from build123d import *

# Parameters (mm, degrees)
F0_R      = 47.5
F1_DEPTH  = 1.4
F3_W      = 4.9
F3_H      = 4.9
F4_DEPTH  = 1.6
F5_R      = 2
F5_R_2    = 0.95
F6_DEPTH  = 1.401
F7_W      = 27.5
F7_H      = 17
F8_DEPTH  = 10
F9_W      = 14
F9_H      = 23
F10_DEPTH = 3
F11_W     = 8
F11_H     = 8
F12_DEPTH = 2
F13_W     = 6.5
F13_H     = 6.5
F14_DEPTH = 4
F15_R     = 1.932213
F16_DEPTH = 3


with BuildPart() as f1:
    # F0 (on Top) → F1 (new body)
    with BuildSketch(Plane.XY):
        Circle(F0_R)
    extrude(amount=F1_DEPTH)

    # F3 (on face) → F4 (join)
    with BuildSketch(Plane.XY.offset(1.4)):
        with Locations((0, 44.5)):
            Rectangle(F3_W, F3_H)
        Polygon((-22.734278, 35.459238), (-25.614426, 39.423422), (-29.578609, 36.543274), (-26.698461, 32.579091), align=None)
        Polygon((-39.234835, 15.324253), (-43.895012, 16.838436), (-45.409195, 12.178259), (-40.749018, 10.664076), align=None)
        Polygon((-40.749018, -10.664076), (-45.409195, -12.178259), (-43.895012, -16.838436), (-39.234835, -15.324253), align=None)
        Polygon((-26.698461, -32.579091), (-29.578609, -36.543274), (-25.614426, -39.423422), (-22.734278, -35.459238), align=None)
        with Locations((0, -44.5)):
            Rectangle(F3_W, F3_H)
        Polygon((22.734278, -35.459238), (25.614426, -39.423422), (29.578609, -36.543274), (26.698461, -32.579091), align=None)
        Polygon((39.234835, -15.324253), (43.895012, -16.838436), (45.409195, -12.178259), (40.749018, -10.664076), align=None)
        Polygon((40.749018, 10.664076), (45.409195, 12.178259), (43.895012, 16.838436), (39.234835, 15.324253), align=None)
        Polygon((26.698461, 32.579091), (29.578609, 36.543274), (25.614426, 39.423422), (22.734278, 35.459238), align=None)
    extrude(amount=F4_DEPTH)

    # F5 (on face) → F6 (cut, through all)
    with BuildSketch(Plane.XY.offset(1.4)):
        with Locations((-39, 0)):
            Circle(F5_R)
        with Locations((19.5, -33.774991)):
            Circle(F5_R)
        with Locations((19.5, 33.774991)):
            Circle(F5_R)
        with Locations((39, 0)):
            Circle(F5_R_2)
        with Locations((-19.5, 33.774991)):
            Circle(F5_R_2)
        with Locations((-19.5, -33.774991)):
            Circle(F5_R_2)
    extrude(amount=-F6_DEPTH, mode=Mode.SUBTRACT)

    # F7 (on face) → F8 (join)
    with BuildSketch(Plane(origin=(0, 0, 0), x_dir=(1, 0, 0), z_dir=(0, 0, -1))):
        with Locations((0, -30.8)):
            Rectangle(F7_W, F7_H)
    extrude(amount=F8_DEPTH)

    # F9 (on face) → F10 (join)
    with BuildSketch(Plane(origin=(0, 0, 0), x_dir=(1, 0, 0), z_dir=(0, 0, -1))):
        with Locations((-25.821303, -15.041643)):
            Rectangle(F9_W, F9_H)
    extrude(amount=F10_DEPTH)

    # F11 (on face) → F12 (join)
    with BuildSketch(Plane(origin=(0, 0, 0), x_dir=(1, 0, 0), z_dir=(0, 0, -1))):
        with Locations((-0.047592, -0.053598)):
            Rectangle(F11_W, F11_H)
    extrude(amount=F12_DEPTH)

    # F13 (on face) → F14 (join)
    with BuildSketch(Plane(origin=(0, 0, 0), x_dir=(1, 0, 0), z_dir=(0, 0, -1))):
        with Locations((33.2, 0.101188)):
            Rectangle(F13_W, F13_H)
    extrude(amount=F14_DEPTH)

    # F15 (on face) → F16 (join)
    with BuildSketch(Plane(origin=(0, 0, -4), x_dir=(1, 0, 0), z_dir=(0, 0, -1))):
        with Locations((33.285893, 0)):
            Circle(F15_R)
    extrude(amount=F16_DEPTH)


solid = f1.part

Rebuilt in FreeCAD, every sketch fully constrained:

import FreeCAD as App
import Part
import Sketcher

V = App.Vector
Q = App.Units.Quantity

doc = App.newDocument("Part")
params = doc.addObject("Spreadsheet::Sheet", "Params")
for row, (alias, value) in enumerate([
    ("sketch1_diameter", "95 mm"),
    ("pad1_length", "1.4 mm"),
    ("sketch2_width", "4.9 mm"),
    ("sketch2_length", "4.900001 mm"),
    ("pad2_length", "1.6 mm"),
    ("sketch3_diameter", "4 mm"),
    ("sketch3_diameter2", "1.9 mm"),
    ("sketch4_height", "17 mm"),
    ("sketch4_width", "27.5 mm"),
    ("pad3_length", "10 mm"),
    ("sketch5_width", "14 mm"),
    ("sketch5_height", "23 mm"),
    ("pad4_length", "3 mm"),
    ("sketch6_width", "8 mm"),
    ("pad5_length", "2 mm"),
    ("sketch7_width", "6.5 mm"),
    ("pad6_length", "4 mm"),
    ("pad7_length", "3 mm"),
], start=1):
    params.set(f"A{row}", alias)
    params.set(f"B{row}", "=" + value)
    params.setAlias(f"B{row}", alias)

body = doc.addObject("PartDesign::Body", "Body")

# Sketch on XY plane
sketch1 = body.newObject("Sketcher::SketchObject", "Sketch")
sketch1.AttachmentSupport = (doc.getObject("XY_Plane"), [""])
sketch1.MapMode = "FlatFace"
sketch1.addGeometry(Part.Circle(V(0, 0, 0), V(0, 0, 1), 48), False)
sketch1.addConstraint(Sketcher.Constraint("Coincident", 0, 3, -1, 1))
sketch1.addConstraint(Sketcher.Constraint("Diameter", 0, Q("95 mm")))
sketch1.setExpression("Constraints[1]", "Params.sketch1_diameter")
pad1 = body.newObject("PartDesign::Pad", "Pad")
pad1.Profile = sketch1
pad1.setExpression("Length", "Params.pad1_length")

# Sketch on XY plane
sketch2 = body.newObject("Sketcher::SketchObject", "Sketch001")
sketch2.AttachmentSupport = (doc.getObject("XY_Plane"), [""])
sketch2.MapMode = "FlatFace"
sketch2.AttachmentOffset = App.Placement(V(0, 0, 1.4), App.Rotation())
sketch2.addGeometry(Part.LineSegment(V(-2.5, 47, 0), V(-2.5, 42, 0)), False)
sketch2.addGeometry(Part.LineSegment(V(-2.5, 42, 0), V(2.5, 42, 0)), False)
sketch2.addGeometry(Part.LineSegment(V(2.5, 42, 0), V(2.5, 47, 0)), False)
sketch2.addGeometry(Part.LineSegment(V(2.5, 47, 0), V(-2.5, 47, 0)), False)
sketch2.addGeometry(Part.LineSegment(V(-22.7, 35.5, 0), V(-25.6, 39.4, 0)), False)
sketch2.addGeometry(Part.LineSegment(V(-25.6, 39.4, 0), V(-29.6, 36.5, 0)), False)
sketch2.addGeometry(Part.LineSegment(V(-29.6, 36.5, 0), V(-26.7, 32.6, 0)), False)
sketch2.addGeometry(Part.LineSegment(V(-26.7, 32.6, 0), V(-22.7, 35.5, 0)), False)
sketch2.addGeometry(Part.LineSegment(V(-39.2, 15.3, 0), V(-43.9, 16.8, 0)), False)
sketch2.addGeometry(Part.LineSegment(V(-43.9, 16.8, 0), V(-45.4, 12.2, 0)), False)
sketch2.addGeometry(Part.LineSegment(V(-45.4, 12.2, 0), V(-40.7, 10.7, 0)), False)
sketch2.addGeometry(Part.LineSegment(V(-40.7, 10.7, 0), V(-39.2, 15.3, 0)), False)
sketch2.addGeometry(Part.LineSegment(V(-40.7, -10.7, 0), V(-45.4, -12.2, 0)), False)
sketch2.addGeometry(Part.LineSegment(V(-45.4, -12.2, 0), V(-43.9, -16.8, 0)), False)
sketch2.addGeometry(Part.LineSegment(V(-43.9, -16.8, 0), V(-39.2, -15.3, 0)), False)
sketch2.addGeometry(Part.LineSegment(V(-39.2, -15.3, 0), V(-40.7, -10.7, 0)), False)
sketch2.addGeometry(Part.LineSegment(V(-26.7, -32.6, 0), V(-29.6, -36.5, 0)), False)
sketch2.addGeometry(Part.LineSegment(V(-29.6, -36.5, 0), V(-25.6, -39.4, 0)), False)
sketch2.addGeometry(Part.LineSegment(V(-25.6, -39.4, 0), V(-22.7, -35.5, 0)), False)
sketch2.addGeometry(Part.LineSegment(V(-22.7, -35.5, 0), V(-26.7, -32.6, 0)), False)
sketch2.addGeometry(Part.LineSegment(V(-2.5, -42, 0), V(-2.5, -47, 0)), False)
sketch2.addGeometry(Part.LineSegment(V(-2.5, -47, 0), V(2.5, -47, 0)), False)
sketch2.addGeometry(Part.LineSegment(V(2.5, -47, 0), V(2.5, -42, 0)), False)
sketch2.addGeometry(Part.LineSegment(V(2.5, -42, 0), V(-2.5, -42, 0)), False)
sketch2.addGeometry(Part.LineSegment(V(22.7, -35.5, 0), V(25.6, -39.4, 0)), False)
sketch2.addGeometry(Part.LineSegment(V(25.6, -39.4, 0), V(29.6, -36.5, 0)), False)
sketch2.addGeometry(Part.LineSegment(V(29.6, -36.5, 0), V(26.7, -32.6, 0)), False)
sketch2.addGeometry(Part.LineSegment(V(26.7, -32.6, 0), V(22.7, -35.5, 0)), False)
sketch2.addGeometry(Part.LineSegment(V(39.2, -15.3, 0), V(43.9, -16.8, 0)), False)
sketch2.addGeometry(Part.LineSegment(V(43.9, -16.8, 0), V(45.4, -12.2, 0)), False)
sketch2.addGeometry(Part.LineSegment(V(45.4, -12.2, 0), V(40.7, -10.7, 0)), False)
sketch2.addGeometry(Part.LineSegment(V(40.7, -10.7, 0), V(39.2, -15.3, 0)), False)
sketch2.addGeometry(Part.LineSegment(V(40.7, 10.7, 0), V(45.4, 12.2, 0)), False)
sketch2.addGeometry(Part.LineSegment(V(45.4, 12.2, 0), V(43.9, 16.8, 0)), False)
sketch2.addGeometry(Part.LineSegment(V(43.9, 16.8, 0), V(39.2, 15.3, 0)), False)
sketch2.addGeometry(Part.LineSegment(V(39.2, 15.3, 0), V(40.7, 10.7, 0)), False)
sketch2.addGeometry(Part.LineSegment(V(26.7, 32.6, 0), V(29.6, 36.5, 0)), False)
sketch2.addGeometry(Part.LineSegment(V(29.6, 36.5, 0), V(25.6, 39.4, 0)), False)
sketch2.addGeometry(Part.LineSegment(V(25.6, 39.4, 0), V(22.7, 35.5, 0)), False)
sketch2.addGeometry(Part.LineSegment(V(22.7, 35.5, 0), V(26.7, 32.6, 0)), False)
sketch2.addConstraint(Sketcher.Constraint("Coincident", 0, 2, 1, 1))
sketch2.addConstraint(Sketcher.Constraint("Coincident", 1, 2, 2, 1))
sketch2.addConstraint(Sketcher.Constraint("Coincident", 2, 2, 3, 1))
sketch2.addConstraint(Sketcher.Constraint("Coincident", 3, 2, 0, 1))
sketch2.addConstraint(Sketcher.Constraint("Coincident", 4, 2, 5, 1))
sketch2.addConstraint(Sketcher.Constraint("Coincident", 5, 2, 6, 1))
sketch2.addConstraint(Sketcher.Constraint("Coincident", 6, 2, 7, 1))
sketch2.addConstraint(Sketcher.Constraint("Coincident", 7, 2, 4, 1))
sketch2.addConstraint(Sketcher.Constraint("Coincident", 8, 2, 9, 1))
sketch2.addConstraint(Sketcher.Constraint("Coincident", 9, 2, 10, 1))
sketch2.addConstraint(Sketcher.Constraint("Coincident", 10, 2, 11, 1))
sketch2.addConstraint(Sketcher.Constraint("Coincident", 11, 2, 8, 1))
sketch2.addConstraint(Sketcher.Constraint("Coincident", 12, 2, 13, 1))
sketch2.addConstraint(Sketcher.Constraint("Coincident", 13, 2, 14, 1))
sketch2.addConstraint(Sketcher.Constraint("Coincident", 14, 2, 15, 1))
sketch2.addConstraint(Sketcher.Constraint("Coincident", 15, 2, 12, 1))
sketch2.addConstraint(Sketcher.Constraint("Coincident", 16, 2, 17, 1))
sketch2.addConstraint(Sketcher.Constraint("Coincident", 17, 2, 18, 1))
sketch2.addConstraint(Sketcher.Constraint("Coincident", 18, 2, 19, 1))
sketch2.addConstraint(Sketcher.Constraint("Coincident", 19, 2, 16, 1))
sketch2.addConstraint(Sketcher.Constraint("Coincident", 20, 2, 21, 1))
sketch2.addConstraint(Sketcher.Constraint("Coincident", 21, 2, 22, 1))
sketch2.addConstraint(Sketcher.Constraint("Coincident", 22, 2, 23, 1))
sketch2.addConstraint(Sketcher.Constraint("Coincident", 23, 2, 20, 1))
sketch2.addConstraint(Sketcher.Constraint("Coincident", 24, 2, 25, 1))
sketch2.addConstraint(Sketcher.Constraint("Coincident", 25, 2, 26, 1))
sketch2.addConstraint(Sketcher.Constraint("Coincident", 26, 2, 27, 1))
sketch2.addConstraint(Sketcher.Constraint("Coincident", 27, 2, 24, 1))
sketch2.addConstraint(Sketcher.Constraint("Coincident", 28, 2, 29, 1))
sketch2.addConstraint(Sketcher.Constraint("Coincident", 29, 2, 30, 1))
sketch2.addConstraint(Sketcher.Constraint("Coincident", 30, 2, 31, 1))
sketch2.addConstraint(Sketcher.Constraint("Coincident", 31, 2, 28, 1))
sketch2.addConstraint(Sketcher.Constraint("Coincident", 32, 2, 33, 1))
sketch2.addConstraint(Sketcher.Constraint("Coincident", 33, 2, 34, 1))
sketch2.addConstraint(Sketcher.Constraint("Coincident", 34, 2, 35, 1))
sketch2.addConstraint(Sketcher.Constraint("Coincident", 35, 2, 32, 1))
sketch2.addConstraint(Sketcher.Constraint("Coincident", 36, 2, 37, 1))
sketch2.addConstraint(Sketcher.Constraint("Coincident", 37, 2, 38, 1))
sketch2.addConstraint(Sketcher.Constraint("Coincident", 38, 2, 39, 1))
sketch2.addConstraint(Sketcher.Constraint("Coincident", 39, 2, 36, 1))
sketch2.addConstraint(Sketcher.Constraint("Vertical", 0))
sketch2.addConstraint(Sketcher.Constraint("Horizontal", 1))
sketch2.addConstraint(Sketcher.Constraint("Vertical", 2))
sketch2.addConstraint(Sketcher.Constraint("Horizontal", 3))
sketch2.addConstraint(Sketcher.Constraint("Vertical", 20))
sketch2.addConstraint(Sketcher.Constraint("Horizontal", 21))
sketch2.addConstraint(Sketcher.Constraint("Vertical", 22))
sketch2.addConstraint(Sketcher.Constraint("Horizontal", 23))
sketch2.addConstraint(Sketcher.Constraint("Symmetric", 2, 2, 20, 2, -1, 1))
sketch2.addConstraint(Sketcher.Constraint("Symmetric", 0, 2, 22, 2, -1, 1))
sketch2.addConstraint(Sketcher.Constraint("Symmetric", 4, 2, 24, 2, -1, 1))
sketch2.addConstraint(Sketcher.Constraint("Symmetric", 5, 2, 25, 2, -1, 1))
sketch2.addConstraint(Sketcher.Constraint("Symmetric", 6, 2, 26, 2, -1, 1))
sketch2.addConstraint(Sketcher.Constraint("Symmetric", 7, 2, 27, 2, -1, 1))
sketch2.addConstraint(Sketcher.Constraint("Symmetric", 8, 2, 28, 2, -1, 1))
sketch2.addConstraint(Sketcher.Constraint("Symmetric", 9, 2, 29, 2, -1, 1))
sketch2.addConstraint(Sketcher.Constraint("Symmetric", 10, 2, 30, 2, -1, 1))
sketch2.addConstraint(Sketcher.Constraint("Symmetric", 11, 2, 31, 2, -1, 1))
sketch2.addConstraint(Sketcher.Constraint("Symmetric", 12, 2, 32, 2, -1, 1))
sketch2.addConstraint(Sketcher.Constraint("Symmetric", 13, 2, 33, 2, -1, 1))
sketch2.addConstraint(Sketcher.Constraint("Symmetric", 14, 2, 34, 2, -1, 1))
sketch2.addConstraint(Sketcher.Constraint("Symmetric", 15, 2, 35, 2, -1, 1))
sketch2.addConstraint(Sketcher.Constraint("Symmetric", 16, 2, 36, 2, -1, 1))
sketch2.addConstraint(Sketcher.Constraint("Symmetric", 17, 2, 37, 2, -1, 1))
sketch2.addConstraint(Sketcher.Constraint("Symmetric", 18, 2, 38, 2, -1, 1))
sketch2.addConstraint(Sketcher.Constraint("Symmetric", 19, 2, 39, 2, -1, 1))
sketch2.addConstraint(Sketcher.Constraint("Symmetric", 17, 2, 24, 2, -2))
sketch2.addConstraint(Sketcher.Constraint("Symmetric", 16, 2, 25, 2, -2))
sketch2.addConstraint(Sketcher.Constraint("Symmetric", 19, 2, 26, 2, -2))
sketch2.addConstraint(Sketcher.Constraint("Symmetric", 18, 2, 27, 2, -2))
sketch2.addConstraint(Sketcher.Constraint("Symmetric", 13, 2, 28, 2, -2))
sketch2.addConstraint(Sketcher.Constraint("Symmetric", 12, 2, 29, 2, -2))
sketch2.addConstraint(Sketcher.Constraint("Symmetric", 15, 2, 30, 2, -2))
sketch2.addConstraint(Sketcher.Constraint("Symmetric", 14, 2, 31, 2, -2))
sketch2.addConstraint(Sketcher.Constraint("Perpendicular", 4, 5))
sketch2.addConstraint(Sketcher.Constraint("Perpendicular", 5, 6))
sketch2.addConstraint(Sketcher.Constraint("Perpendicular", 6, 7))
sketch2.addConstraint(Sketcher.Constraint("Perpendicular", 8, 9))
sketch2.addConstraint(Sketcher.Constraint("Perpendicular", 9, 10))
sketch2.addConstraint(Sketcher.Constraint("Perpendicular", 10, 11))
sketch2.addConstraint(Sketcher.Constraint("Vertical", 3, 2, 20, 2))
sketch2.addConstraint(Sketcher.Constraint("Equal", 23, 0))
sketch2.addConstraint(Sketcher.Constraint("Equal", 4, 5))
sketch2.addConstraint(Sketcher.Constraint("Equal", 7, 8))
sketch2.addConstraint(Sketcher.Constraint("Equal", 8, 9))
sketch2.addConstraint(Sketcher.Constraint("Angle", 4, Q("125.999997 deg")))
sketch2.addConstraint(Sketcher.Constraint("Angle", 8, Q("162.000003 deg")))
sketch2.addConstraint(Sketcher.Constraint("DistanceX", 1, 1, 1, 2, Q("4.9 mm")))
sketch2.addConstraint(Sketcher.Constraint("Distance", 4, Q("4.900001 mm")))
sketch2.addConstraint(Sketcher.Constraint("DistanceY", -1, 1, 0, 2, Q("42.05 mm")))
sketch2.addConstraint(Sketcher.Constraint("DistanceY", 8, 2, 7, 2, Q("18.620802 mm")))
sketch2.addConstraint(Sketcher.Constraint("DistanceX", 5, 2, -1, 1, Q("29.578609 mm")))
sketch2.addConstraint(Sketcher.Constraint("DistanceY", -1, 1, 6, 2, Q("32.579091 mm")))
sketch2.addConstraint(Sketcher.Constraint("DistanceX", 8, 2, 6, 2, Q("17.196551 mm")))
sketch2.setExpression("Constraints[87]", "Params.sketch2_width")
sketch2.setExpression("Constraints[88]", "Params.sketch2_length")
pad2 = body.newObject("PartDesign::Pad", "Pad001")
pad2.Profile = sketch2
pad2.setExpression("Length", "Params.pad2_length")

# Sketch on XY plane
sketch3 = body.newObject("Sketcher::SketchObject", "Sketch002")
sketch3.AttachmentSupport = (doc.getObject("XY_Plane"), [""])
sketch3.MapMode = "FlatFace"
sketch3.AttachmentOffset = App.Placement(V(0, 0, 1.4), App.Rotation())
sketch3.addGeometry(Part.Circle(V(-39, 0, 0), V(0, 0, 1), 2), False)
sketch3.addGeometry(Part.Circle(V(19.5, -33.8, 0), V(0, 0, 1), 2), False)
sketch3.addGeometry(Part.Circle(V(19.5, 33.8, 0), V(0, 0, 1), 2), False)
sketch3.addGeometry(Part.Circle(V(39, 0, 0), V(0, 0, 1), 0.9), False)
sketch3.addGeometry(Part.Circle(V(-19.5, 33.8, 0), V(0, 0, 1), 0.9), False)
sketch3.addGeometry(Part.Circle(V(-19.5, -33.8, 0), V(0, 0, 1), 0.9), False)
sketch3.addConstraint(Sketcher.Constraint("Equal", 0, 1))
sketch3.addConstraint(Sketcher.Constraint("Equal", 1, 2))
sketch3.addConstraint(Sketcher.Constraint("Equal", 3, 4))
sketch3.addConstraint(Sketcher.Constraint("Equal", 4, 5))
sketch3.addConstraint(Sketcher.Constraint("Symmetric", 0, 3, 3, 3, -1, 1))
sketch3.addConstraint(Sketcher.Constraint("Symmetric", 1, 3, 4, 3, -1, 1))
sketch3.addConstraint(Sketcher.Constraint("Symmetric", 2, 3, 5, 3, -1, 1))
sketch3.addConstraint(Sketcher.Constraint("Symmetric", 2, 3, 4, 3, -2))
sketch3.addConstraint(Sketcher.Constraint("PointOnObject", 0, 3, -1))
sketch3.addConstraint(Sketcher.Constraint("Diameter", 0, Q("4 mm")))
sketch3.addConstraint(Sketcher.Constraint("Diameter", 3, Q("1.9 mm")))
sketch3.addConstraint(Sketcher.Constraint("DistanceX", 0, 3, -1, 1, Q("39 mm")))
sketch3.addConstraint(Sketcher.Constraint("DistanceX", 4, 3, 2, 3, Q("39 mm")))
sketch3.addConstraint(Sketcher.Constraint("DistanceY", 1, 3, -1, 1, Q("33.774991 mm")))
sketch3.setExpression("Constraints[9]", "Params.sketch3_diameter")
sketch3.setExpression("Constraints[10]", "Params.sketch3_diameter2")
pocket1 = body.newObject("PartDesign::Pocket", "Pocket")
pocket1.Profile = sketch3
pocket1.Type = "ThroughAll"

# Sketch on XY plane
sketch4 = body.newObject("Sketcher::SketchObject", "Sketch003")
sketch4.AttachmentSupport = (doc.getObject("XY_Plane"), [""])
sketch4.MapMode = "FlatFace"
sketch4.addGeometry(Part.LineSegment(V(-14, 22, 0), V(-14, 39, 0)), False)
sketch4.addGeometry(Part.LineSegment(V(-14, 39, 0), V(14, 39, 0)), False)
sketch4.addGeometry(Part.LineSegment(V(14, 39, 0), V(14, 22, 0)), False)
sketch4.addGeometry(Part.LineSegment(V(14, 22, 0), V(-14, 22, 0)), False)
sketch4.addConstraint(Sketcher.Constraint("Coincident", 0, 2, 1, 1))
sketch4.addConstraint(Sketcher.Constraint("Coincident", 1, 2, 2, 1))
sketch4.addConstraint(Sketcher.Constraint("Coincident", 2, 2, 3, 1))
sketch4.addConstraint(Sketcher.Constraint("Coincident", 3, 2, 0, 1))
sketch4.addConstraint(Sketcher.Constraint("Vertical", 0))
sketch4.addConstraint(Sketcher.Constraint("Horizontal", 1))
sketch4.addConstraint(Sketcher.Constraint("Vertical", 2))
sketch4.addConstraint(Sketcher.Constraint("Horizontal", 3))
sketch4.addConstraint(Sketcher.Constraint("DistanceY", 0, 1, 0, 2, Q("17 mm")))
sketch4.addConstraint(Sketcher.Constraint("DistanceX", 1, 1, 1, 2, Q("27.5 mm")))
sketch4.addConstraint(Sketcher.Constraint("DistanceY", -1, 1, 0, 2, Q("39.3 mm")))
sketch4.addConstraint(Sketcher.Constraint("DistanceX", 0, 2, -1, 1, Q("13.75 mm")))
sketch4.setExpression("Constraints[8]", "Params.sketch4_height")
sketch4.setExpression("Constraints[9]", "Params.sketch4_width")
pad3 = body.newObject("PartDesign::Pad", "Pad002")
pad3.Profile = sketch4
pad3.setExpression("Length", "Params.pad3_length")
pad3.Reversed = True

# Sketch on XY plane
sketch5 = body.newObject("Sketcher::SketchObject", "Sketch004")
sketch5.AttachmentSupport = (doc.getObject("XY_Plane"), [""])
sketch5.MapMode = "FlatFace"
sketch5.addGeometry(Part.LineSegment(V(-33, 4, 0), V(-33, 27, 0)), False)
sketch5.addGeometry(Part.LineSegment(V(-33, 27, 0), V(-19, 27, 0)), False)
sketch5.addGeometry(Part.LineSegment(V(-19, 27, 0), V(-19, 4, 0)), False)
sketch5.addGeometry(Part.LineSegment(V(-19, 4, 0), V(-33, 4, 0)), False)
sketch5.addConstraint(Sketcher.Constraint("Coincident", 0, 2, 1, 1))
sketch5.addConstraint(Sketcher.Constraint("Coincident", 1, 2, 2, 1))
sketch5.addConstraint(Sketcher.Constraint("Coincident", 2, 2, 3, 1))
sketch5.addConstraint(Sketcher.Constraint("Coincident", 3, 2, 0, 1))
sketch5.addConstraint(Sketcher.Constraint("Vertical", 0))
sketch5.addConstraint(Sketcher.Constraint("Horizontal", 1))
sketch5.addConstraint(Sketcher.Constraint("Vertical", 2))
sketch5.addConstraint(Sketcher.Constraint("Horizontal", 3))
sketch5.addConstraint(Sketcher.Constraint("DistanceX", 1, 1, 1, 2, Q("14 mm")))
sketch5.addConstraint(Sketcher.Constraint("DistanceY", 0, 1, 0, 2, Q("23 mm")))
sketch5.addConstraint(Sketcher.Constraint("DistanceX", 0, 2, -1, 1, Q("32.821303 mm")))
sketch5.addConstraint(Sketcher.Constraint("DistanceY", -1, 1, 0, 2, Q("26.541643 mm")))
sketch5.setExpression("Constraints[8]", "Params.sketch5_width")
sketch5.setExpression("Constraints[9]", "Params.sketch5_height")
pad4 = body.newObject("PartDesign::Pad", "Pad003")
pad4.Profile = sketch5
pad4.setExpression("Length", "Params.pad4_length")
pad4.Reversed = True

# Sketch on XY plane
sketch6 = body.newObject("Sketcher::SketchObject", "Sketch005")
sketch6.AttachmentSupport = (doc.getObject("XY_Plane"), [""])
sketch6.MapMode = "FlatFace"
sketch6.addGeometry(Part.LineSegment(V(-4, -4, 0), V(-4, 4, 0)), False)
sketch6.addGeometry(Part.LineSegment(V(-4, 4, 0), V(4, 4, 0)), False)
sketch6.addGeometry(Part.LineSegment(V(4, 4, 0), V(4, -4, 0)), False)
sketch6.addGeometry(Part.LineSegment(V(4, -4, 0), V(-4, -4, 0)), False)
sketch6.addConstraint(Sketcher.Constraint("Coincident", 0, 2, 1, 1))
sketch6.addConstraint(Sketcher.Constraint("Coincident", 1, 2, 2, 1))
sketch6.addConstraint(Sketcher.Constraint("Coincident", 2, 2, 3, 1))
sketch6.addConstraint(Sketcher.Constraint("Coincident", 3, 2, 0, 1))
sketch6.addConstraint(Sketcher.Constraint("Vertical", 0))
sketch6.addConstraint(Sketcher.Constraint("Horizontal", 1))
sketch6.addConstraint(Sketcher.Constraint("Vertical", 2))
sketch6.addConstraint(Sketcher.Constraint("Horizontal", 3))
sketch6.addConstraint(Sketcher.Constraint("Equal", 3, 0))
sketch6.addConstraint(Sketcher.Constraint("DistanceX", 1, 1, 1, 2, Q("8 mm")))
sketch6.addConstraint(Sketcher.Constraint("DistanceY", 2, 2, -1, 1, Q("3.946402 mm")))
sketch6.addConstraint(Sketcher.Constraint("DistanceX", -1, 1, 1, 2, Q("3.952408 mm")))
sketch6.setExpression("Constraints[9]", "Params.sketch6_width")
pad5 = body.newObject("PartDesign::Pad", "Pad004")
pad5.Profile = sketch6
pad5.setExpression("Length", "Params.pad5_length")
pad5.Reversed = True

# Sketch on XY plane
sketch7 = body.newObject("Sketcher::SketchObject", "Sketch006")
sketch7.AttachmentSupport = (doc.getObject("XY_Plane"), [""])
sketch7.MapMode = "FlatFace"
sketch7.addGeometry(Part.LineSegment(V(30, -3, 0), V(30, 3, 0)), False)
sketch7.addGeometry(Part.LineSegment(V(30, 3, 0), V(36, 3, 0)), False)
sketch7.addGeometry(Part.LineSegment(V(36, 3, 0), V(36, -3, 0)), False)
sketch7.addGeometry(Part.LineSegment(V(36, -3, 0), V(30, -3, 0)), False)
sketch7.addConstraint(Sketcher.Constraint("Coincident", 0, 2, 1, 1))
sketch7.addConstraint(Sketcher.Constraint("Coincident", 1, 2, 2, 1))
sketch7.addConstraint(Sketcher.Constraint("Coincident", 2, 2, 3, 1))
sketch7.addConstraint(Sketcher.Constraint("Coincident", 3, 2, 0, 1))
sketch7.addConstraint(Sketcher.Constraint("Vertical", 0))
sketch7.addConstraint(Sketcher.Constraint("Horizontal", 1))
sketch7.addConstraint(Sketcher.Constraint("Vertical", 2))
sketch7.addConstraint(Sketcher.Constraint("Horizontal", 3))
sketch7.addConstraint(Sketcher.Constraint("Equal", 3, 0))
sketch7.addConstraint(Sketcher.Constraint("DistanceX", 1, 1, 1, 2, Q("6.5 mm")))
sketch7.addConstraint(Sketcher.Constraint("DistanceX", -1, 1, 0, 2, Q("29.95 mm")))
sketch7.addConstraint(Sketcher.Constraint("DistanceY", -1, 1, 0, 2, Q("3.148812 mm")))
sketch7.setExpression("Constraints[9]", "Params.sketch7_width")
pad6 = body.newObject("PartDesign::Pad", "Pad005")
pad6.Profile = sketch7
pad6.setExpression("Length", "Params.pad6_length")
pad6.Reversed = True

# Sketch on XY plane
sketch8 = body.newObject("Sketcher::SketchObject", "Sketch007")
sketch8.AttachmentSupport = (doc.getObject("XY_Plane"), [""])
sketch8.MapMode = "FlatFace"
sketch8.AttachmentOffset = App.Placement(V(0, 0, -4), App.Rotation())
sketch8.addGeometry(Part.Circle(V(33.3, 0, 0), V(0, 0, 1), 1.9), False)
sketch8.addConstraint(Sketcher.Constraint("PointOnObject", 0, 3, -1))
sketch8.addConstraint(Sketcher.Constraint("Diameter", 0, Q("3.864426 mm")))
sketch8.addConstraint(Sketcher.Constraint("DistanceX", -1, 1, 0, 3, Q("33.285893 mm")))
pad7 = body.newObject("PartDesign::Pad", "Pad006")
pad7.Profile = sketch8
pad7.setExpression("Length", "Params.pad7_length")
pad7.Reversed = True

doc.recompute()
